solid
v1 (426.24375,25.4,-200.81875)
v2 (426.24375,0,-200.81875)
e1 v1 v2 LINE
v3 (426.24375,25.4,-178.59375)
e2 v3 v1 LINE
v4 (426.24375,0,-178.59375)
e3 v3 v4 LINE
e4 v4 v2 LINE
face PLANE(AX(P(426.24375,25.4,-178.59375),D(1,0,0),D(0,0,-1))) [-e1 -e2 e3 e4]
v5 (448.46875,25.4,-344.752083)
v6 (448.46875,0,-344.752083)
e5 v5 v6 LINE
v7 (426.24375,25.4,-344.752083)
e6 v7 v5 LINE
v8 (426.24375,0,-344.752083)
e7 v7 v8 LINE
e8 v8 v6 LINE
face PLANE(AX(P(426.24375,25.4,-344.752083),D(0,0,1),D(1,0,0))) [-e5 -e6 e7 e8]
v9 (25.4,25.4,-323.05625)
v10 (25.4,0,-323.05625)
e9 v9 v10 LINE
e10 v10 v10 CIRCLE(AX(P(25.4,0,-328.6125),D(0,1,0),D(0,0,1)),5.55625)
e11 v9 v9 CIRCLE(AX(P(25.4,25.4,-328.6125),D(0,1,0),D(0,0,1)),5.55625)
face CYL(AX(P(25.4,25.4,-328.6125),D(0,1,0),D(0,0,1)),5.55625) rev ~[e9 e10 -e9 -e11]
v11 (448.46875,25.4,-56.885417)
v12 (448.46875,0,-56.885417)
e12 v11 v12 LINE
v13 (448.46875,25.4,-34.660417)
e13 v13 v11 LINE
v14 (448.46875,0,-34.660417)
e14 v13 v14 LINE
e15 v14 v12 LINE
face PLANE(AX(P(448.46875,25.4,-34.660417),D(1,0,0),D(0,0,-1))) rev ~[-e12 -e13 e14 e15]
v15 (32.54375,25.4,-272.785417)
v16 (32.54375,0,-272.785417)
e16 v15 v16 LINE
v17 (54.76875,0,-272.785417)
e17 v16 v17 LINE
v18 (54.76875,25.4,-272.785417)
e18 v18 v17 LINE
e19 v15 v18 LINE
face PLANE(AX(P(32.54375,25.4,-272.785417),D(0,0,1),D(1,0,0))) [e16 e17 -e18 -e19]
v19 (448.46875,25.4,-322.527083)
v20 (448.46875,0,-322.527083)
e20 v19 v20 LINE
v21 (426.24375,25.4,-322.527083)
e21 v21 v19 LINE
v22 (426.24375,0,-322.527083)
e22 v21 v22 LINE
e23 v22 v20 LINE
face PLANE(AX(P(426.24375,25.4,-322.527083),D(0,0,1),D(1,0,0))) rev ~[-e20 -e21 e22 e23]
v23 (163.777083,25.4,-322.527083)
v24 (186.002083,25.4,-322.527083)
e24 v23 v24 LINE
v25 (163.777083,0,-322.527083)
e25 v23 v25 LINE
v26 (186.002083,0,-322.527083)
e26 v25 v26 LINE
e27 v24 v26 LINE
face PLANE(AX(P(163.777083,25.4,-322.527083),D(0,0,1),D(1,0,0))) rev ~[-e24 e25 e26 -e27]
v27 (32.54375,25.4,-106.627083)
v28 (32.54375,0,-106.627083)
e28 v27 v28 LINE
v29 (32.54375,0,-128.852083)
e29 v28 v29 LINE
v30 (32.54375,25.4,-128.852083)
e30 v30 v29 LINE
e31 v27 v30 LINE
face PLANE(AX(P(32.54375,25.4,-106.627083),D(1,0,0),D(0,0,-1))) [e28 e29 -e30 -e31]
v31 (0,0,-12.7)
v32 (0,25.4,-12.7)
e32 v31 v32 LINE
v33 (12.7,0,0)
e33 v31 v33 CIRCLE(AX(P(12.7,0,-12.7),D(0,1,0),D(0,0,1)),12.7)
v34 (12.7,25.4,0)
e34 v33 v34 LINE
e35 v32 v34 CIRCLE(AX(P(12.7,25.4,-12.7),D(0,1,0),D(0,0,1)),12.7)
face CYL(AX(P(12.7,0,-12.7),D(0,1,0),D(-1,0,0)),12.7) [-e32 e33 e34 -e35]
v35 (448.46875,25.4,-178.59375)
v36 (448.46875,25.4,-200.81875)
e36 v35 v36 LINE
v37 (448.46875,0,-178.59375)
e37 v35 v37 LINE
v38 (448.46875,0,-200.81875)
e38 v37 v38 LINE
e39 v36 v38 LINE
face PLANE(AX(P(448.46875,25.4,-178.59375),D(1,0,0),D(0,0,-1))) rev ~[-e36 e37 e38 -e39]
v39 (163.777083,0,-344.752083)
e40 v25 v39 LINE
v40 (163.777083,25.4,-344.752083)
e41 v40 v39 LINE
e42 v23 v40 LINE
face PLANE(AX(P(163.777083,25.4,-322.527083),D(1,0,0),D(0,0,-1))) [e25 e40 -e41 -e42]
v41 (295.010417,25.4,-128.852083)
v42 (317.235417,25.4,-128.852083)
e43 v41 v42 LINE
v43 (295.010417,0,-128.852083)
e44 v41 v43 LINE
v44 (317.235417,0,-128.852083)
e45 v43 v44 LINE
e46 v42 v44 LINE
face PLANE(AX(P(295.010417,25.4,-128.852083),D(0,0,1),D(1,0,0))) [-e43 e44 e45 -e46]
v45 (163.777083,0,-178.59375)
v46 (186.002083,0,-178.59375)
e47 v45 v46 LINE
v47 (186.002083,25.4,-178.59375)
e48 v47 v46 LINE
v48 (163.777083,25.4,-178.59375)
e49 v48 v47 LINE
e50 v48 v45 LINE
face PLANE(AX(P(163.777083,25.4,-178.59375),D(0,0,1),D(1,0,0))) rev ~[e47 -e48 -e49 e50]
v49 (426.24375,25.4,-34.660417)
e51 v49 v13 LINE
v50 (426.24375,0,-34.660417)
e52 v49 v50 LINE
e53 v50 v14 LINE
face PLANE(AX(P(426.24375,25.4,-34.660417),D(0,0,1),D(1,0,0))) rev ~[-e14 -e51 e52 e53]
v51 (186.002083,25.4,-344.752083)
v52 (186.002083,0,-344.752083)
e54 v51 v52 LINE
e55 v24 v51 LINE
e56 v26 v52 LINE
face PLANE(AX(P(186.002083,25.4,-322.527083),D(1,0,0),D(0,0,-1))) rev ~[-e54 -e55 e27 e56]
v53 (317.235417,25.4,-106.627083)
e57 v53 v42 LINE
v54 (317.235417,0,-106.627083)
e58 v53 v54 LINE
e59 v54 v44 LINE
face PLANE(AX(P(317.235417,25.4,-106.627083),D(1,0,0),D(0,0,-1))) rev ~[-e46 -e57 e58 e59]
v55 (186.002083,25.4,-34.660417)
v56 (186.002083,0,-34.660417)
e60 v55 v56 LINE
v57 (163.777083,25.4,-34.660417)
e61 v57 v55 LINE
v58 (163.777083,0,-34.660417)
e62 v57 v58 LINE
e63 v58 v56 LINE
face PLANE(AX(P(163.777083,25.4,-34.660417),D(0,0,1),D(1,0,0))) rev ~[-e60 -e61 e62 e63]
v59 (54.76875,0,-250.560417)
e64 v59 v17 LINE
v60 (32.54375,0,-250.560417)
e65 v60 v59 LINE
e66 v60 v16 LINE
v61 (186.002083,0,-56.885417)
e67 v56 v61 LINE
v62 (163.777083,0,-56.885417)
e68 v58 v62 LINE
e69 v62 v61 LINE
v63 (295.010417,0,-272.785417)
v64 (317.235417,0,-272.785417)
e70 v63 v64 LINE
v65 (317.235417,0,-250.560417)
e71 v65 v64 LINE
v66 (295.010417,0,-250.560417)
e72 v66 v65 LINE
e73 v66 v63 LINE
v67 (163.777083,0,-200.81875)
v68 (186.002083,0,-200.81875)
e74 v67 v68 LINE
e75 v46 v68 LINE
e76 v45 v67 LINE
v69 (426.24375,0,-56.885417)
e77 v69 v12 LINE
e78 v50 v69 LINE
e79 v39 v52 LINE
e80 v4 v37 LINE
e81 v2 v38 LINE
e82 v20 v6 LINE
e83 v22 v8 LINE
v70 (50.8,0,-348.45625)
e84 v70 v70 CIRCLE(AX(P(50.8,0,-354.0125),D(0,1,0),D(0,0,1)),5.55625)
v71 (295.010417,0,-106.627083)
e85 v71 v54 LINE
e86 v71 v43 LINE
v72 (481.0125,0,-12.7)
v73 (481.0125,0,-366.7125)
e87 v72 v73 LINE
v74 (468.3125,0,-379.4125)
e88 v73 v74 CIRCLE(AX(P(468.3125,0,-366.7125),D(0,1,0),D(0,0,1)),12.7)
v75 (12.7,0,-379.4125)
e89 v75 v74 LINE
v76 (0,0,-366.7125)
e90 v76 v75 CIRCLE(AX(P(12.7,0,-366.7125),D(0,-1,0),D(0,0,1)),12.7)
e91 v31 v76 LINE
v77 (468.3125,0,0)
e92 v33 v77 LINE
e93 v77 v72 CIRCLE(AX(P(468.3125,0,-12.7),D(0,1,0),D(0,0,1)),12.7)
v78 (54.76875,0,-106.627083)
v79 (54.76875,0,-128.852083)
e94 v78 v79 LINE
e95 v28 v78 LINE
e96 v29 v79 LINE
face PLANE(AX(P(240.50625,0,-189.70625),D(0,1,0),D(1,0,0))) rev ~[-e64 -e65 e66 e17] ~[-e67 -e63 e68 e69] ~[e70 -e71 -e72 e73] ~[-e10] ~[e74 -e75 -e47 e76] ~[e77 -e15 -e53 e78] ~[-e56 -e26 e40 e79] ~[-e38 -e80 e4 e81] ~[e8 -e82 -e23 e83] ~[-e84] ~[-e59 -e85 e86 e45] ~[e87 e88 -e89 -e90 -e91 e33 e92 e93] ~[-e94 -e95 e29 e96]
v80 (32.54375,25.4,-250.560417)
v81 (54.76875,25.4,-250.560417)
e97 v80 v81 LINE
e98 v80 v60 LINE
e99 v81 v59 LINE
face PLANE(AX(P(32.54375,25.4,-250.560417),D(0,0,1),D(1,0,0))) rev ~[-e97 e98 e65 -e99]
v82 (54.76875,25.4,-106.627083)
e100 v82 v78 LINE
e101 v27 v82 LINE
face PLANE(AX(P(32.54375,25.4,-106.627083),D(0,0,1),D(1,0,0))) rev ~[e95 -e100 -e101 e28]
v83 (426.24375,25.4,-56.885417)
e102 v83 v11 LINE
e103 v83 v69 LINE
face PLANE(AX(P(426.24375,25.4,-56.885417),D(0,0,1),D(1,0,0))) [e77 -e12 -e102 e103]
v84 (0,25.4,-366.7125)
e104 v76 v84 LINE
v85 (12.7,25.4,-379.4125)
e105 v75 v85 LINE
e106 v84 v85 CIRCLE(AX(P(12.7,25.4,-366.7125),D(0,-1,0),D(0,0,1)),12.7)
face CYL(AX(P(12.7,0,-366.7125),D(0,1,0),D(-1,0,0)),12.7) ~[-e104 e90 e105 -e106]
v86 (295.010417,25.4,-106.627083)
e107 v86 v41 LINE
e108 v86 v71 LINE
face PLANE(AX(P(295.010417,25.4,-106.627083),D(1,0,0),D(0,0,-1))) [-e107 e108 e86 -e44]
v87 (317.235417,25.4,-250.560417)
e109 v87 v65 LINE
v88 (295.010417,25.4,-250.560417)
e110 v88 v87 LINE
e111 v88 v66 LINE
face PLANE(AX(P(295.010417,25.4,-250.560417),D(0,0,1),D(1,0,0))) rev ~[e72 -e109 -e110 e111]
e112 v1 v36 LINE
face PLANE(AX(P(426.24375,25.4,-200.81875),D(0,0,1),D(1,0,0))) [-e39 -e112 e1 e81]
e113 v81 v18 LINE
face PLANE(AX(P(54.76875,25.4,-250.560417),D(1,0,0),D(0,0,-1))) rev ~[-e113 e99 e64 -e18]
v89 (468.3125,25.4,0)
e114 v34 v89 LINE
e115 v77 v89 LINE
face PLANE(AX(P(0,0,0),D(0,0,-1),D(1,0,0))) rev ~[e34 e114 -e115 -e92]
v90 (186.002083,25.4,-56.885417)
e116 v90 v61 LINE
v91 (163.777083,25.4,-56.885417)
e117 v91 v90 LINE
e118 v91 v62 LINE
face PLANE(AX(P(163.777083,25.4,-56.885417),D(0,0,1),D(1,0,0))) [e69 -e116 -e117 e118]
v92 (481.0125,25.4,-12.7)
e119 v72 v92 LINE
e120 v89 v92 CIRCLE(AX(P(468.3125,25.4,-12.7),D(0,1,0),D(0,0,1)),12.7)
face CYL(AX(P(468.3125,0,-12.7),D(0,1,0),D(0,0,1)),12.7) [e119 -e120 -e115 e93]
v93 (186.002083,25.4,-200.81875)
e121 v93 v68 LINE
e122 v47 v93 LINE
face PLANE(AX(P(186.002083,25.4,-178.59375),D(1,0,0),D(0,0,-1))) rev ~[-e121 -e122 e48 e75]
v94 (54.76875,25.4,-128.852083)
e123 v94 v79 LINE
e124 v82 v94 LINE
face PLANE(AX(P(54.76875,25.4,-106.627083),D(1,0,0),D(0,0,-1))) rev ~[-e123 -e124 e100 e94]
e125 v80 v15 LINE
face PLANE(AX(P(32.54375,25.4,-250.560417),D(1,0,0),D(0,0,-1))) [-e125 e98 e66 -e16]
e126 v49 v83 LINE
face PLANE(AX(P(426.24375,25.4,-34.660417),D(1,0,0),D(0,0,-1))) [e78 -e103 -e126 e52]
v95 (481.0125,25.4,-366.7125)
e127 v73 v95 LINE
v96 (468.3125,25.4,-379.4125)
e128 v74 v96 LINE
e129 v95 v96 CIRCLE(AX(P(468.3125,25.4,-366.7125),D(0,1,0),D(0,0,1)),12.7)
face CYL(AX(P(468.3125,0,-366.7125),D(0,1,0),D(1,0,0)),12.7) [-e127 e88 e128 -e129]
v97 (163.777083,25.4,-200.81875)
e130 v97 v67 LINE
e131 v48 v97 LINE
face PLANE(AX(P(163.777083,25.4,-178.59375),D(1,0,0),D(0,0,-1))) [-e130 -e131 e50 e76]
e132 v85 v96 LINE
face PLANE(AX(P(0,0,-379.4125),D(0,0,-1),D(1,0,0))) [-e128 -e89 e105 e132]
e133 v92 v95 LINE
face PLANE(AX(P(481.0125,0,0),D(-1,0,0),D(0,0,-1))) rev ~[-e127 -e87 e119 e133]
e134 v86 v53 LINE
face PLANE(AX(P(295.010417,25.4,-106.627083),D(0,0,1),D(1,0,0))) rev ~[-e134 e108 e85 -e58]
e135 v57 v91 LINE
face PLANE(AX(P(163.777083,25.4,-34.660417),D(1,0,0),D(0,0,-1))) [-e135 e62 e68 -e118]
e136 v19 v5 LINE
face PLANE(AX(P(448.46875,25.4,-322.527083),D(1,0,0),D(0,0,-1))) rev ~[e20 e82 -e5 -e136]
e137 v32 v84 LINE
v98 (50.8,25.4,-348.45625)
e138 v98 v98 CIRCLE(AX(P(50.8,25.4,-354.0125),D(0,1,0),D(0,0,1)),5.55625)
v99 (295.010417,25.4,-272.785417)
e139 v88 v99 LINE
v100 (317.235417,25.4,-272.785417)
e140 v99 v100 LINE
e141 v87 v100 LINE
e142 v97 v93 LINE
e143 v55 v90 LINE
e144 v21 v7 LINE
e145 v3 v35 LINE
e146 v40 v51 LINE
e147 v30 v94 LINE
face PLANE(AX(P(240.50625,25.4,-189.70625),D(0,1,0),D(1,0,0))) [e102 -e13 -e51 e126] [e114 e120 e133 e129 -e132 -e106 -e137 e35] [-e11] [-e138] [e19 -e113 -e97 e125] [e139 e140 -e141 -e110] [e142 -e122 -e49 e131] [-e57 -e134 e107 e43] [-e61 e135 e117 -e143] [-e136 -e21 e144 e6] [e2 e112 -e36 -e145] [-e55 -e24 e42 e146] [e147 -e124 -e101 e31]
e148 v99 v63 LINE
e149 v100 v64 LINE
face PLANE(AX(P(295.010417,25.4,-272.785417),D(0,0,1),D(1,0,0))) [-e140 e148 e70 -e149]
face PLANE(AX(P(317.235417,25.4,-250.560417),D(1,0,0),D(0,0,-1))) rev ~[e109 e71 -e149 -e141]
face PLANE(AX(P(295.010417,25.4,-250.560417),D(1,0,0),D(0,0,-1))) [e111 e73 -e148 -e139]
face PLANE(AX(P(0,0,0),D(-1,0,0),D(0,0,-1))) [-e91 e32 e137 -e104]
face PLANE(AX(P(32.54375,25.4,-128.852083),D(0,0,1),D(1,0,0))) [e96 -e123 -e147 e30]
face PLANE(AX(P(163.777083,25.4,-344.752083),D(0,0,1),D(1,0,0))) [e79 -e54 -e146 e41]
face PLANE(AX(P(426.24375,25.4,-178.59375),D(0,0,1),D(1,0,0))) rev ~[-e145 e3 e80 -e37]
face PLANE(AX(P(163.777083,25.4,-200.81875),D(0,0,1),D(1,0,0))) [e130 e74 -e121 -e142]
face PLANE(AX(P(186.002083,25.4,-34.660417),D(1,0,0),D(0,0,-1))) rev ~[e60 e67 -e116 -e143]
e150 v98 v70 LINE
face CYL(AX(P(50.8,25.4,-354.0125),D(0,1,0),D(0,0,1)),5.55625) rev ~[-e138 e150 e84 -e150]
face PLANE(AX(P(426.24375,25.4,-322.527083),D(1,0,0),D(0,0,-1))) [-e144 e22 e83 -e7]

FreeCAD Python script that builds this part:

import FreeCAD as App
import Part
import Sketcher
from FreeCAD import Vector
Q = App.Units.Quantity


def edges_at(feature, points):
    """Names of the edges that pass closest to the given points."""
    edges = feature.Shape.Edges
    near = lambda p: min(range(len(edges)), key=lambda i: edges[i].distToShape(Part.Vertex(*p))[0])
    return sorted({f"Edge{near(p) + 1}" for p in points})


def add_polygon(sketch, points):
    """Adds a closed chain of lines whose ends are joined by coincident constraints."""
    first, n = sketch.GeometryCount, len(points)
    for a, b in zip(points, points[1:] + points[:1]):
        sketch.addGeometry(Part.LineSegment(App.Vector(*a, 0), App.Vector(*b, 0)), False)
    for i in range(n):
        sketch.addConstraint(Sketcher.Constraint("Coincident", first + i, 2, first + (i + 1) % n, 1))

doc = App.newDocument("Part")
params = doc.addObject("Spreadsheet::Sheet", "Params")
for row, (alias, value) in enumerate([
    ("sketch1_width", "18.9375 in"),
    ("sketch1_height", "14.9375 in"),
    ("pad1_length", "1 in"),
    ("fillet_radius", "0.5 in"),
    ("sketch2_width", "0.875 in"),
    ("pocket1_length", "1 in"),
    ("sketch3_diameter", "0.4375 in"),
    ("pocket2_length", "1 in"),
], start=1):
    params.set(f"A{row}", alias)
    params.set(f"B{row}", "=" + value)
    params.setAlias(f"B{row}", alias)

body = doc.addObject("PartDesign::Body", "Body")

sketch1 = doc.addObject("Sketcher::SketchObject", "Sketch")
body.addObject(sketch1)
sketch1.AttachmentSupport = (doc.XZ_Plane, [""])
sketch1.MapMode = "FlatFace"
add_polygon(sketch1, [(0, -379), (0, 0), (481, 0), (481, -379)])
sketch1.addConstraint([
    Sketcher.Constraint("Vertical", 0),
    Sketcher.Constraint("Horizontal", 1),
    Sketcher.Constraint("Vertical", 2),
    Sketcher.Constraint("Horizontal", 3),
    Sketcher.Constraint("Coincident", 0, 2, -1, 1),
    Sketcher.Constraint("DistanceX", 1, 1, 1, 2, Q("18.9375 in")),
    Sketcher.Constraint("DistanceY", 0, 1, 0, 2, Q("14.9375 in")),
])
sketch1.setExpression("Constraints[9]", "Params.sketch1_width")
sketch1.setExpression("Constraints[10]", "Params.sketch1_height")
pad1 = doc.addObject("PartDesign::Pad", "Pad")
body.addObject(pad1)
pad1.Profile = sketch1
pad1.setExpression("Length", "Params.pad1_length")
pad1.Reversed = True
doc.recompute()

fillet = doc.addObject("PartDesign::Fillet", "Fillet")
body.addObject(fillet)
fillet.Base = (pad1, edges_at(pad1, [
    (0, 12.7, -379.413),
    (481.012, 12.7, -379.413),
    (481.012, 12.7, 0),
    (0, 12.7, 0),
]))
fillet.setExpression("Radius", "Params.fillet_radius")

sketch2 = doc.addObject("Sketcher::SketchObject", "Sketch001")
body.addObject(sketch2)
sketch2.AttachmentSupport = (doc.XZ_Plane, [""])
sketch2.MapMode = "FlatFace"
sketch2.AttachmentOffset = App.Placement(Vector(0, 0, -1 * 25.4), App.Rotation())
add_polygon(sketch2, [(33, -129), (33, -107), (55, -107), (55, -129)])
add_polygon(sketch2, [(33, -273), (33, -251), (55, -251), (55, -273)])
add_polygon(sketch2, [(164, -57), (164, -35), (186, -35), (186, -57)])
add_polygon(sketch2, [(295, -129), (295, -107), (317, -107), (317, -129)])
add_polygon(sketch2, [(426, -57), (426, -35), (448, -35), (448, -57)])
add_polygon(sketch2, [(426, -201), (426, -179), (448, -179), (448, -201)])
add_polygon(sketch2, [(426, -345), (426, -323), (448, -323), (448, -345)])
add_polygon(sketch2, [(164, -201), (164, -179), (186, -179), (186, -201)])
add_polygon(sketch2, [(164, -345), (164, -323), (186, -323), (186, -345)])
add_polygon(sketch2, [(295, -273), (295, -251), (317, -251), (317, -273)])
sketch2.addConstraint([
    Sketcher.Constraint("Vertical", 0),
    Sketcher.Constraint("Horizontal", 1),
    Sketcher.Constraint("Vertical", 2),
    Sketcher.Constraint("Horizontal", 3),
    Sketcher.Constraint("Vertical", 4),
    Sketcher.Constraint("Horizontal", 5),
    Sketcher.Constraint("Vertical", 6),
    Sketcher.Constraint("Horizontal", 7),
    Sketcher.Constraint("Vertical", 8),
    Sketcher.Constraint("Horizontal", 9),
    Sketcher.Constraint("Vertical", 10),
    Sketcher.Constraint("Horizontal", 11),
    Sketcher.Constraint("Vertical", 12),
    Sketcher.Constraint("Horizontal", 13),
    Sketcher.Constraint("Vertical", 14),
    Sketcher.Constraint("Horizontal", 15),
    Sketcher.Constraint("Vertical", 16),
    Sketcher.Constraint("Horizontal", 17),
    Sketcher.Constraint("Vertical", 18),
    Sketcher.Constraint("Horizontal", 19),
    Sketcher.Constraint("Vertical", 20),
    Sketcher.Constraint("Horizontal", 21),
    Sketcher.Constraint("Vertical", 22),
    Sketcher.Constraint("Horizontal", 23),
    Sketcher.Constraint("Vertical", 24),
    Sketcher.Constraint("Horizontal", 25),
    Sketcher.Constraint("Vertical", 26),
    Sketcher.Constraint("Horizontal", 27),
    Sketcher.Constraint("Vertical", 28),
    Sketcher.Constraint("Horizontal", 29),
    Sketcher.Constraint("Vertical", 30),
    Sketcher.Constraint("Horizontal", 31),
    Sketcher.Constraint("Vertical", 32),
    Sketcher.Constraint("Horizontal", 33),
    Sketcher.Constraint("Vertical", 34),
    Sketcher.Constraint("Horizontal", 35),
    Sketcher.Constraint("Vertical", 36),
    Sketcher.Constraint("Horizontal", 37),
    Sketcher.Constraint("Vertical", 38),
    Sketcher.Constraint("Horizontal", 39),
    Sketcher.Constraint("Horizontal", 1, 2, 12, 2),
    Sketcher.Constraint("Horizontal", 3, 2, 14, 2),
    Sketcher.Constraint("Horizontal", 9, 2, 16, 2),
    Sketcher.Constraint("Horizontal", 11, 2, 18, 2),
    Sketcher.Constraint("Horizontal", 21, 2, 28, 2),
    Sketcher.Constraint("Horizontal", 23, 2, 30, 2),
    Sketcher.Constraint("Horizontal", 25, 2, 32, 2),
    Sketcher.Constraint("Horizontal", 27, 2, 34, 2),
    Sketcher.Constraint("Horizontal", 5, 2, 36, 2),
    Sketcher.Constraint("Horizontal", 7, 2, 38, 2),
    Sketcher.Constraint("Vertical", 3, 2, 4, 2),
    Sketcher.Constraint("Vertical", 2, 2, 5, 2),
    Sketcher.Constraint("Vertical", 19, 2, 20, 2),
    Sketcher.Constraint("Vertical", 18, 2, 21, 2),
    Sketcher.Constraint("Vertical", 23, 2, 24, 2),
    Sketcher.Constraint("Vertical", 22, 2, 25, 2),
    Sketcher.Constraint("Vertical", 11, 2, 28, 2),
    Sketcher.Constraint("Vertical", 10, 2, 29, 2),
    Sketcher.Constraint("Vertical", 31, 2, 32, 2),
    Sketcher.Constraint("Vertical", 30, 2, 33, 2),
    Sketcher.Constraint("Vertical", 15, 2, 36, 2),
    Sketcher.Constraint("Vertical", 14, 2, 37, 2),
    Sketcher.Constraint("Equal", 7, 9),
    Sketcher.Constraint("Equal", 11, 13),
    Sketcher.Constraint("Equal", 15, 17),
    Sketcher.Constraint("Equal", 39, 0),
    Sketcher.Constraint("Equal", 2, 4),
    Sketcher.Constraint("Equal", 6, 8),
    Sketcher.Constraint("Equal", 18, 20),
    Sketcher.Constraint("Equal", 22, 24),
    Sketcher.Constraint("DistanceY", 5, 2, 8, 2, Q("8.5 in")),
    Sketcher.Constraint("DistanceX", 1, 1, 1, 2, Q("0.875 in")),
    Sketcher.Constraint("DistanceX", -1, 1, 0, 2, Q("1.28125 in")),
    Sketcher.Constraint("DistanceX", -1, 1, 16, 2, Q("16.78125 in")),
    Sketcher.Constraint("DistanceY", 20, 2, -1, 1, Q("7.03125 in")),
    Sketcher.Constraint("DistanceY", 24, 2, 14, 2, Q("7.625 in")),
    Sketcher.Constraint("DistanceY", 0, 2, -1, 1, 106.627083),
    Sketcher.Constraint("DistanceY", 4, 2, -1, 1, 250.560417),
    Sketcher.Constraint("DistanceX", -1, 1, 8, 2, 163.777083),
    Sketcher.Constraint("DistanceX", -1, 1, 12, 2, 295.010417),
])
sketch2.setExpression("Constraints[111]", "Params.sketch2_width")
pocket1 = doc.addObject("PartDesign::Pocket", "Pocket")
body.addObject(pocket1)
pocket1.Profile = sketch2
pocket1.setExpression("Length", "Params.pocket1_length")
pocket1.Reversed = True

sketch3 = doc.addObject("Sketcher::SketchObject", "Sketch002")
body.addObject(sketch3)
sketch3.AttachmentSupport = (doc.XZ_Plane, [""])
sketch3.MapMode = "FlatFace"
sketch3.AttachmentOffset = App.Placement(Vector(0, 0, -1 * 25.4), App.Rotation())
sketch3.addGeometry([
    Part.Circle(Vector(25, -329, 0), Vector(0, 0, 1), 6),
    Part.Circle(Vector(51, -354, 0), Vector(0, 0, 1), 6),
], False)
sketch3.addConstraint([
    Sketcher.Constraint("Equal", 0, 1),
    Sketcher.Constraint("Diameter", 0, Q("0.4375 in")),
    Sketcher.Constraint("DistanceX", -1, 1, 0, 3, Q("1 in")),
    Sketcher.Constraint("DistanceX", -1, 1, 1, 3, Q("2 in")),
    Sketcher.Constraint("DistanceY", 1, 3, 0, 3, Q("1 in")),
    Sketcher.Constraint("DistanceY", 0, 3, -1, 1, Q("12.9375 in")),
])
sketch3.setExpression("Constraints[1]", "Params.sketch3_diameter")
pocket2 = doc.addObject("PartDesign::Pocket", "Pocket001")
body.addObject(pocket2)
pocket2.Profile = sketch3
pocket2.setExpression("Length", "Params.pocket2_length")
pocket2.Reversed = True

doc.recompute()
